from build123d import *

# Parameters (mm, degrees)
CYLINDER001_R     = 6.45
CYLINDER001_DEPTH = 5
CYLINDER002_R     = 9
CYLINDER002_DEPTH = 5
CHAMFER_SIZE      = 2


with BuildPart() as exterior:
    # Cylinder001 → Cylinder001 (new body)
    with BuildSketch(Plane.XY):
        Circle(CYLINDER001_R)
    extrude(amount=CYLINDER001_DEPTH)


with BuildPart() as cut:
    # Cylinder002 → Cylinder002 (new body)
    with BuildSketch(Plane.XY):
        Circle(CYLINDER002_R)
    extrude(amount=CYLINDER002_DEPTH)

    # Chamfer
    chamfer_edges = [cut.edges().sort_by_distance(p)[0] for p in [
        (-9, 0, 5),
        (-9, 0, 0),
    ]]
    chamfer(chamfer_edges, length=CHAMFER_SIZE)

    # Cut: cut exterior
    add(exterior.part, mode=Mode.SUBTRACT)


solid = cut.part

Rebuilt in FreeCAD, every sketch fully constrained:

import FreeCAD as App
import Part
import Sketcher


def edges_at(feature, points):
    """Names of the edges that pass closest to the given points."""
    edges = feature.Shape.Edges
    near = lambda p: min(range(len(edges)), key=lambda i: edges[i].distToShape(Part.Vertex(*p))[0])
    return sorted({f"Edge{near(p) + 1}" for p in points})

doc = App.newDocument("Part")
body = doc.addObject("PartDesign::Body", "Body")

sketch1 = body.newObject("Sketcher::SketchObject", "Sketch")
sketch1.AttachmentSupport = (doc.getObject("XY_Plane"), [""])
sketch1.MapMode = "FlatFace"
sketch1.addGeometry(Part.Circle(App.Vector(0, 0, 0), App.Vector(0, 0, 1), 6), False)
sketch1.addConstraint(Sketcher.Constraint("Coincident", 0, 3, -1, 1))
sketch1.addConstraint(Sketcher.Constraint("Diameter", 0, 12.9))
pad1 = body.newObject("PartDesign::Pad", "Pad")
pad1.Profile = sketch1
pad1.Length = 5
body2 = doc.addObject("PartDesign::Body", "Body001")

sketch2 = body2.newObject("Sketcher::SketchObject", "Sketch001")
sketch2.AttachmentSupport = (doc.getObject("XY_Plane001"), [""])
sketch2.MapMode = "FlatFace"
sketch2.addGeometry(Part.Circle(App.Vector(0, 0, 0), App.Vector(0, 0, 1), 9), False)
sketch2.addConstraint(Sketcher.Constraint("Coincident", 0, 3, -1, 1))
sketch2.addConstraint(Sketcher.Constraint("Diameter", 0, 18.0))
pad2 = body2.newObject("PartDesign::Pad", "Pad001")
pad2.Profile = sketch2
pad2.Length = 5
doc.recompute()

chamfer = body2.newObject("PartDesign::Chamfer", "Chamfer")
chamfer.Base = (pad2, edges_at(pad2, [(-9, 0, 5), (-9, 0, 0)]))
chamfer.Size = 2
doc.recompute()

boolean = body2.newObject("PartDesign::Boolean", "Boolean")
boolean.Type = "Cut"
boolean.addObjects([body])

doc.recompute()
